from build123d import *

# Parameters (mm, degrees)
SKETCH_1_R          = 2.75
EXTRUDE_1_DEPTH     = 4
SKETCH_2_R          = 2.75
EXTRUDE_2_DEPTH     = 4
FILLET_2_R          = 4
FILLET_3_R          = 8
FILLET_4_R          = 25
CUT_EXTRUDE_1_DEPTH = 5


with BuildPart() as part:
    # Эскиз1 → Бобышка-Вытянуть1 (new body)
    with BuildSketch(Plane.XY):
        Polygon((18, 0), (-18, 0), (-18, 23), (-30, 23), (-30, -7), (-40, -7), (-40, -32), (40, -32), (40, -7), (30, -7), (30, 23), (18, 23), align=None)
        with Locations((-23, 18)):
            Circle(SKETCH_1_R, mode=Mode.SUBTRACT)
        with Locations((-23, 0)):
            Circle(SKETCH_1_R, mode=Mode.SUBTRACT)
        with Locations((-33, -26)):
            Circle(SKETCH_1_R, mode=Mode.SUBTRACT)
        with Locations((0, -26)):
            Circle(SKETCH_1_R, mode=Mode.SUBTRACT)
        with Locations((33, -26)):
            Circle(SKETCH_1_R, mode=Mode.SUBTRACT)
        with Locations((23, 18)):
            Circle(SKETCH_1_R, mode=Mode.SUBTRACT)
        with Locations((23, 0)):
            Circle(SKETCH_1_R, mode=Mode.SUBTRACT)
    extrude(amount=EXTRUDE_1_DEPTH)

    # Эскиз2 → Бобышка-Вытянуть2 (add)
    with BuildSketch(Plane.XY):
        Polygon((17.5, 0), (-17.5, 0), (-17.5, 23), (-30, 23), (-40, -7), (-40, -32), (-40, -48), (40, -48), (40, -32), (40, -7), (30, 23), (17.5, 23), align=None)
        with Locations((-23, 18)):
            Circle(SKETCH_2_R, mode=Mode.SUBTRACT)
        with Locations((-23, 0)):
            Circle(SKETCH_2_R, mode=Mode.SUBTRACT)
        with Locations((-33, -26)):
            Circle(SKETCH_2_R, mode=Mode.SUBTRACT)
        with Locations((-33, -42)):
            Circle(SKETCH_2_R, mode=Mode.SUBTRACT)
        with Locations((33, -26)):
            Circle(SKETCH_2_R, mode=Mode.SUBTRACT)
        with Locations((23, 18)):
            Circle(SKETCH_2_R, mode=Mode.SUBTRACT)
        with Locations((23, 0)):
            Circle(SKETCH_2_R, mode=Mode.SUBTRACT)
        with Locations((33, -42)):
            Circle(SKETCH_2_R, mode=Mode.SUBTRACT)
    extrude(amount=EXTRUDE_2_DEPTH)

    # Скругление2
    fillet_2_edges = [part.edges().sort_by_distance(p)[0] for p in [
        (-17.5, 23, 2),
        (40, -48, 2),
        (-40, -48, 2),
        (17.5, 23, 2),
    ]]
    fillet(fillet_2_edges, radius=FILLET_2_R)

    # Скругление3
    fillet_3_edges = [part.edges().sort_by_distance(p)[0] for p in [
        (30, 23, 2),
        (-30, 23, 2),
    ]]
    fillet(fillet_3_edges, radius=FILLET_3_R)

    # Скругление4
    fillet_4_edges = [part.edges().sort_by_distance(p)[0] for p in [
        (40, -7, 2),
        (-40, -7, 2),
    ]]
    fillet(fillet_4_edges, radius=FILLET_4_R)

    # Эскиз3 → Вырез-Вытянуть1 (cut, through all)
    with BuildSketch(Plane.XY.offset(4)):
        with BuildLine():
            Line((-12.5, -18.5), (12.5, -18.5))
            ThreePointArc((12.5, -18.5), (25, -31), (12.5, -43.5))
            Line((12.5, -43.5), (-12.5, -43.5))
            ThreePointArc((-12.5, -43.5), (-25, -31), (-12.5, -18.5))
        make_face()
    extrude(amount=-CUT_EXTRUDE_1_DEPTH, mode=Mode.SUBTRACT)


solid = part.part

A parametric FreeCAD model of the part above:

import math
import FreeCAD as App
import Part
import Sketcher
from FreeCAD import Vector


def edges_at(feature, points):
    """Names of the edges that pass closest to the given points."""
    edges = feature.Shape.Edges
    near = lambda p: min(range(len(edges)), key=lambda i: edges[i].distToShape(Part.Vertex(*p))[0])
    return sorted({f"Edge{near(p) + 1}" for p in points})

doc = App.newDocument("Part")
body = doc.addObject("PartDesign::Body", "Body")

# Sketch on XY plane
sketch1 = body.newObject("Sketcher::SketchObject", "Sketch")
sketch1.AttachmentSupport = (doc.getObject("XY_Plane"), [""])
sketch1.MapMode = "FlatFace"
sketch1.addGeometry([
    Part.LineSegment(Vector(18, 0, 0), Vector(-18, 0, 0)),  # 0
    Part.LineSegment(Vector(-18, 0, 0), Vector(-18, 23, 0)),  # 1
    Part.LineSegment(Vector(-18, 23, 0), Vector(-30, 23, 0)),  # 2
    Part.LineSegment(Vector(-30, 23, 0), Vector(-30, -7, 0)),  # 3
    Part.LineSegment(Vector(-30, -7, 0), Vector(-40, -7, 0)),  # 4
    Part.LineSegment(Vector(-40, -7, 0), Vector(-40, -32, 0)),  # 5
    Part.LineSegment(Vector(-40, -32, 0), Vector(40, -32, 0)),  # 6
    Part.LineSegment(Vector(40, -32, 0), Vector(40, -7, 0)),  # 7
    Part.LineSegment(Vector(40, -7, 0), Vector(30, -7, 0)),  # 8
    Part.LineSegment(Vector(30, -7, 0), Vector(30, 23, 0)),  # 9
    Part.LineSegment(Vector(30, 23, 0), Vector(18, 23, 0)),  # 10
    Part.LineSegment(Vector(18, 23, 0), Vector(18, 0, 0)),  # 11
    Part.Circle(Vector(-33, -26, 0), Vector(0, 0, 1), 2.8),  # 12
    Part.Circle(Vector(0, -26, 0), Vector(0, 0, 1), 2.8),  # 13
    Part.Circle(Vector(33, -26, 0), Vector(0, 0, 1), 2.8),  # 14
    Part.Circle(Vector(-23, 0, 0), Vector(0, 0, 1), 2.8),  # 15
    Part.Circle(Vector(-23, 18, 0), Vector(0, 0, 1), 2.8),  # 16
    Part.Circle(Vector(23, 0, 0), Vector(0, 0, 1), 2.8),  # 17
    Part.Circle(Vector(23, 18, 0), Vector(0, 0, 1), 2.8),  # 18
], False)
sketch1.addConstraint([
    Sketcher.Constraint("Coincident", 0, 2, 1, 1),
    Sketcher.Constraint("Coincident", 1, 2, 2, 1),
    Sketcher.Constraint("Coincident", 2, 2, 3, 1),
    Sketcher.Constraint("Coincident", 3, 2, 4, 1),
    Sketcher.Constraint("Coincident", 4, 2, 5, 1),
    Sketcher.Constraint("Coincident", 5, 2, 6, 1),
    Sketcher.Constraint("Coincident", 6, 2, 7, 1),
    Sketcher.Constraint("Coincident", 7, 2, 8, 1),
    Sketcher.Constraint("Coincident", 8, 2, 9, 1),
    Sketcher.Constraint("Coincident", 9, 2, 10, 1),
    Sketcher.Constraint("Coincident", 10, 2, 11, 1),
    Sketcher.Constraint("Coincident", 11, 2, 0, 1),
    Sketcher.Constraint("Horizontal", 0),
    Sketcher.Constraint("Vertical", 1),
    Sketcher.Constraint("Horizontal", 2),
    Sketcher.Constraint("Vertical", 3),
    Sketcher.Constraint("Horizontal", 4),
    Sketcher.Constraint("Vertical", 5),
    Sketcher.Constraint("Horizontal", 6),
    Sketcher.Constraint("Vertical", 7),
    Sketcher.Constraint("Horizontal", 8),
    Sketcher.Constraint("Vertical", 9),
    Sketcher.Constraint("Horizontal", 10),
    Sketcher.Constraint("Vertical", 11),
    Sketcher.Constraint("Equal", 12, 13),
    Sketcher.Constraint("Equal", 13, 14),
    Sketcher.Constraint("Equal", 14, 15),
    Sketcher.Constraint("Equal", 15, 16),
    Sketcher.Constraint("Equal", 16, 17),
    Sketcher.Constraint("Equal", 17, 18),
    Sketcher.Constraint("Symmetric", 15, 3, 17, 3, -1, 1),
    Sketcher.Constraint("Symmetric", 0, 2, 11, 2, -1, 1),
    Sketcher.Constraint("Symmetric", 12, 3, 14, 3, -2),
    Sketcher.Constraint("Symmetric", 16, 3, 18, 3, -2),
    Sketcher.Constraint("Symmetric", 4, 2, 7, 2, -2),
    Sketcher.Constraint("Symmetric", 2, 2, 9, 2, -2),
    Sketcher.Constraint("PointOnObject", 13, 3, -2),
    Sketcher.Constraint("PointOnObject", 15, 3, -1),
    Sketcher.Constraint("Horizontal", 12, 3, 13, 3),
    Sketcher.Constraint("Vertical", 15, 3, 16, 3),
    Sketcher.Constraint("Diameter", 12, 5.5),
    Sketcher.Constraint("DistanceX", 0, 2, 0, 1, 36.0),
    Sketcher.Constraint("DistanceX", 2, 2, 2, 1, 12.0),
    Sketcher.Constraint("DistanceX", 4, 2, 4, 1, 10.0),
    Sketcher.Constraint("DistanceY", 1, 1, 1, 2, 23.0),
    Sketcher.Constraint("DistanceY", 3, 2, 3, 1, 30.0),
    Sketcher.Constraint("DistanceY", 5, 2, 5, 1, 25.0),
    Sketcher.Constraint("DistanceX", 12, 3, -1, 1, 33.0),
    Sketcher.Constraint("DistanceY", 12, 3, -1, 1, 26.0),
    Sketcher.Constraint("DistanceX", 15, 3, -1, 1, 23.0),
    Sketcher.Constraint("DistanceY", -1, 1, 16, 3, 18.0),
])
pad1 = body.newObject("PartDesign::Pad", "Pad")
pad1.Profile = sketch1
pad1.Length = 4

# Sketch on XY plane
sketch2 = body.newObject("Sketcher::SketchObject", "Sketch001")
sketch2.AttachmentSupport = (doc.getObject("XY_Plane"), [""])
sketch2.MapMode = "FlatFace"
sketch2.addGeometry([
    Part.LineSegment(Vector(17.5, 0, 0), Vector(-17.5, 0, 0)),  # 0
    Part.LineSegment(Vector(-17.5, 0, 0), Vector(-17.5, 23, 0)),  # 1
    Part.LineSegment(Vector(-17.5, 23, 0), Vector(-30, 23, 0)),  # 2
    Part.LineSegment(Vector(-30, 23, 0), Vector(-40, -7, 0)),  # 3
    Part.LineSegment(Vector(-40, -7, 0), Vector(-40, -48, 0)),  # 4
    Part.LineSegment(Vector(-40, -48, 0), Vector(40, -48, 0)),  # 5
    Part.LineSegment(Vector(40, -48, 0), Vector(40, -7, 0)),  # 6
    Part.LineSegment(Vector(40, -7, 0), Vector(30, 23, 0)),  # 7
    Part.LineSegment(Vector(30, 23, 0), Vector(17.5, 23, 0)),  # 8
    Part.LineSegment(Vector(17.5, 23, 0), Vector(17.5, 0, 0)),  # 9
    Part.Circle(Vector(-33, -42, 0), Vector(0, 0, 1), 2.8),  # 10
    Part.Circle(Vector(-33, -26, 0), Vector(0, 0, 1), 2.8),  # 11
    Part.Circle(Vector(33, -42, 0), Vector(0, 0, 1), 2.8),  # 12
    Part.Circle(Vector(33, -26, 0), Vector(0, 0, 1), 2.8),  # 13
    Part.Circle(Vector(-23, 0, 0), Vector(0, 0, 1), 2.8),  # 14
    Part.Circle(Vector(-23, 18, 0), Vector(0, 0, 1), 2.8),  # 15
    Part.Circle(Vector(23, 0, 0), Vector(0, 0, 1), 2.8),  # 16
    Part.Circle(Vector(23, 18, 0), Vector(0, 0, 1), 2.8),  # 17
], False)
sketch2.addConstraint([
    Sketcher.Constraint("Coincident", 0, 2, 1, 1),
    Sketcher.Constraint("Coincident", 1, 2, 2, 1),
    Sketcher.Constraint("Coincident", 2, 2, 3, 1),
    Sketcher.Constraint("Coincident", 3, 2, 4, 1),
    Sketcher.Constraint("Coincident", 4, 2, 5, 1),
    Sketcher.Constraint("Coincident", 5, 2, 6, 1),
    Sketcher.Constraint("Coincident", 6, 2, 7, 1),
    Sketcher.Constraint("Coincident", 7, 2, 8, 1),
    Sketcher.Constraint("Coincident", 8, 2, 9, 1),
    Sketcher.Constraint("Coincident", 9, 2, 0, 1),
    Sketcher.Constraint("Horizontal", 0),
    Sketcher.Constraint("Vertical", 1),
    Sketcher.Constraint("Horizontal", 2),
    Sketcher.Constraint("Vertical", 4),
    Sketcher.Constraint("Horizontal", 5),
    Sketcher.Constraint("Vertical", 6),
    Sketcher.Constraint("Horizontal", 8),
    Sketcher.Constraint("Vertical", 9),
    Sketcher.Constraint("Equal", 10, 11),
    Sketcher.Constraint("Equal", 11, 12),
    Sketcher.Constraint("Equal", 12, 13),
    Sketcher.Constraint("Equal", 13, 14),
    Sketcher.Constraint("Equal", 14, 15),
    Sketcher.Constraint("Equal", 15, 16),
    Sketcher.Constraint("Equal", 16, 17),
    Sketcher.Constraint("Symmetric", 14, 3, 16, 3, -1, 1),
    Sketcher.Constraint("Symmetric", 0, 2, 9, 2, -1, 1),
    Sketcher.Constraint("Symmetric", 10, 3, 12, 3, -2),
    Sketcher.Constraint("Symmetric", 11, 3, 13, 3, -2),
    Sketcher.Constraint("Symmetric", 15, 3, 17, 3, -2),
    Sketcher.Constraint("Symmetric", 3, 2, 6, 2, -2),
    Sketcher.Constraint("Symmetric", 2, 2, 7, 2, -2),
    Sketcher.Constraint("PointOnObject", 14, 3, -1),
    Sketcher.Constraint("Vertical", 10, 3, 11, 3),
    Sketcher.Constraint("Vertical", 14, 3, 15, 3),
    Sketcher.Constraint("Diameter", 10, 5.5),
    Sketcher.Constraint("DistanceX", 0, 2, 0, 1, 35.0),
    Sketcher.Constraint("DistanceX", 5, 1, 5, 2, 80.0),
    Sketcher.Constraint("DistanceY", 1, 1, 1, 2, 23.0),
    Sketcher.Constraint("DistanceY", 4, 2, 4, 1, 41.0),
    Sketcher.Constraint("DistanceX", 2, 2, 2, 1, 12.5),
    Sketcher.Constraint("DistanceX", 10, 3, -1, 1, 33.0),
    Sketcher.Constraint("DistanceY", 10, 3, -1, 1, 42.0),
    Sketcher.Constraint("DistanceY", 11, 3, -1, 1, 26.0),
    Sketcher.Constraint("DistanceX", 14, 3, -1, 1, 23.0),
    Sketcher.Constraint("DistanceY", -1, 1, 15, 3, 18.0),
    Sketcher.Constraint("DistanceY", 3, 2, -1, 1, 7.0),
])
pad2 = body.newObject("PartDesign::Pad", "Pad001")
pad2.Profile = sketch2
pad2.Length = 4
doc.recompute()

fillet = body.newObject("PartDesign::Fillet", "Fillet")
fillet.Base = (pad2, edges_at(pad2, [
    (-17.5, 23, 2),
    (40, -48, 2),
    (-40, -48, 2),
    (17.5, 23, 2),
]))
fillet.Radius = 4
doc.recompute()

fillet2 = body.newObject("PartDesign::Fillet", "Fillet001")
fillet2.Base = (fillet, edges_at(fillet, [(30, 23, 2), (-30, 23, 2)]))
fillet2.Radius = 8
doc.recompute()

fillet3 = body.newObject("PartDesign::Fillet", "Fillet002")
fillet3.Base = (fillet2, edges_at(fillet2, [(40, -7, 2), (-40, -7, 2)]))
fillet3.Radius = 25

# Sketch on XY plane
sketch3 = body.newObject("Sketcher::SketchObject", "Sketch002")
sketch3.AttachmentSupport = (doc.getObject("XY_Plane"), [""])
sketch3.MapMode = "FlatFace"
sketch3.AttachmentOffset = App.Placement(Vector(0, 0, 4), App.Rotation())
sketch3.addGeometry([
    Part.LineSegment(Vector(12, -18, 0), Vector(-12, -18, 0)),
    Part.ArcOfCircle(Part.Circle(Vector(-12, -31, 0), Vector(0, 0, 1), 12), math.radians(90), math.radians(270)),
    Part.LineSegment(Vector(-12, -44, 0), Vector(12, -44, 0)),
    Part.ArcOfCircle(Part.Circle(Vector(12, -31, 0), Vector(0, 0, 1), 12), math.radians(-90), math.radians(90)),
], False)
sketch3.addConstraint([
    Sketcher.Constraint("Tangent", 0, 2, 1, 1),
    Sketcher.Constraint("Tangent", 1, 2, 2, 1),
    Sketcher.Constraint("Tangent", 2, 2, 3, 1),
    Sketcher.Constraint("Tangent", 3, 2, 0, 1),
    Sketcher.Constraint("Horizontal", 0),
    Sketcher.Constraint("Horizontal", 2),
    Sketcher.Constraint("Radius", 1, 12.5),
    Sketcher.Constraint("DistanceX", 0, 2, 0, 1, 25.0),
    Sketcher.Constraint("DistanceY", 1, 3, -1, 1, 31.0),
    Sketcher.Constraint("DistanceX", 1, 3, -1, 1, 12.5),
])
pocket1 = body.newObject("PartDesign::Pocket", "Pocket")
pocket1.Profile = sketch3
pocket1.Type = "ThroughAll"

doc.recompute()
